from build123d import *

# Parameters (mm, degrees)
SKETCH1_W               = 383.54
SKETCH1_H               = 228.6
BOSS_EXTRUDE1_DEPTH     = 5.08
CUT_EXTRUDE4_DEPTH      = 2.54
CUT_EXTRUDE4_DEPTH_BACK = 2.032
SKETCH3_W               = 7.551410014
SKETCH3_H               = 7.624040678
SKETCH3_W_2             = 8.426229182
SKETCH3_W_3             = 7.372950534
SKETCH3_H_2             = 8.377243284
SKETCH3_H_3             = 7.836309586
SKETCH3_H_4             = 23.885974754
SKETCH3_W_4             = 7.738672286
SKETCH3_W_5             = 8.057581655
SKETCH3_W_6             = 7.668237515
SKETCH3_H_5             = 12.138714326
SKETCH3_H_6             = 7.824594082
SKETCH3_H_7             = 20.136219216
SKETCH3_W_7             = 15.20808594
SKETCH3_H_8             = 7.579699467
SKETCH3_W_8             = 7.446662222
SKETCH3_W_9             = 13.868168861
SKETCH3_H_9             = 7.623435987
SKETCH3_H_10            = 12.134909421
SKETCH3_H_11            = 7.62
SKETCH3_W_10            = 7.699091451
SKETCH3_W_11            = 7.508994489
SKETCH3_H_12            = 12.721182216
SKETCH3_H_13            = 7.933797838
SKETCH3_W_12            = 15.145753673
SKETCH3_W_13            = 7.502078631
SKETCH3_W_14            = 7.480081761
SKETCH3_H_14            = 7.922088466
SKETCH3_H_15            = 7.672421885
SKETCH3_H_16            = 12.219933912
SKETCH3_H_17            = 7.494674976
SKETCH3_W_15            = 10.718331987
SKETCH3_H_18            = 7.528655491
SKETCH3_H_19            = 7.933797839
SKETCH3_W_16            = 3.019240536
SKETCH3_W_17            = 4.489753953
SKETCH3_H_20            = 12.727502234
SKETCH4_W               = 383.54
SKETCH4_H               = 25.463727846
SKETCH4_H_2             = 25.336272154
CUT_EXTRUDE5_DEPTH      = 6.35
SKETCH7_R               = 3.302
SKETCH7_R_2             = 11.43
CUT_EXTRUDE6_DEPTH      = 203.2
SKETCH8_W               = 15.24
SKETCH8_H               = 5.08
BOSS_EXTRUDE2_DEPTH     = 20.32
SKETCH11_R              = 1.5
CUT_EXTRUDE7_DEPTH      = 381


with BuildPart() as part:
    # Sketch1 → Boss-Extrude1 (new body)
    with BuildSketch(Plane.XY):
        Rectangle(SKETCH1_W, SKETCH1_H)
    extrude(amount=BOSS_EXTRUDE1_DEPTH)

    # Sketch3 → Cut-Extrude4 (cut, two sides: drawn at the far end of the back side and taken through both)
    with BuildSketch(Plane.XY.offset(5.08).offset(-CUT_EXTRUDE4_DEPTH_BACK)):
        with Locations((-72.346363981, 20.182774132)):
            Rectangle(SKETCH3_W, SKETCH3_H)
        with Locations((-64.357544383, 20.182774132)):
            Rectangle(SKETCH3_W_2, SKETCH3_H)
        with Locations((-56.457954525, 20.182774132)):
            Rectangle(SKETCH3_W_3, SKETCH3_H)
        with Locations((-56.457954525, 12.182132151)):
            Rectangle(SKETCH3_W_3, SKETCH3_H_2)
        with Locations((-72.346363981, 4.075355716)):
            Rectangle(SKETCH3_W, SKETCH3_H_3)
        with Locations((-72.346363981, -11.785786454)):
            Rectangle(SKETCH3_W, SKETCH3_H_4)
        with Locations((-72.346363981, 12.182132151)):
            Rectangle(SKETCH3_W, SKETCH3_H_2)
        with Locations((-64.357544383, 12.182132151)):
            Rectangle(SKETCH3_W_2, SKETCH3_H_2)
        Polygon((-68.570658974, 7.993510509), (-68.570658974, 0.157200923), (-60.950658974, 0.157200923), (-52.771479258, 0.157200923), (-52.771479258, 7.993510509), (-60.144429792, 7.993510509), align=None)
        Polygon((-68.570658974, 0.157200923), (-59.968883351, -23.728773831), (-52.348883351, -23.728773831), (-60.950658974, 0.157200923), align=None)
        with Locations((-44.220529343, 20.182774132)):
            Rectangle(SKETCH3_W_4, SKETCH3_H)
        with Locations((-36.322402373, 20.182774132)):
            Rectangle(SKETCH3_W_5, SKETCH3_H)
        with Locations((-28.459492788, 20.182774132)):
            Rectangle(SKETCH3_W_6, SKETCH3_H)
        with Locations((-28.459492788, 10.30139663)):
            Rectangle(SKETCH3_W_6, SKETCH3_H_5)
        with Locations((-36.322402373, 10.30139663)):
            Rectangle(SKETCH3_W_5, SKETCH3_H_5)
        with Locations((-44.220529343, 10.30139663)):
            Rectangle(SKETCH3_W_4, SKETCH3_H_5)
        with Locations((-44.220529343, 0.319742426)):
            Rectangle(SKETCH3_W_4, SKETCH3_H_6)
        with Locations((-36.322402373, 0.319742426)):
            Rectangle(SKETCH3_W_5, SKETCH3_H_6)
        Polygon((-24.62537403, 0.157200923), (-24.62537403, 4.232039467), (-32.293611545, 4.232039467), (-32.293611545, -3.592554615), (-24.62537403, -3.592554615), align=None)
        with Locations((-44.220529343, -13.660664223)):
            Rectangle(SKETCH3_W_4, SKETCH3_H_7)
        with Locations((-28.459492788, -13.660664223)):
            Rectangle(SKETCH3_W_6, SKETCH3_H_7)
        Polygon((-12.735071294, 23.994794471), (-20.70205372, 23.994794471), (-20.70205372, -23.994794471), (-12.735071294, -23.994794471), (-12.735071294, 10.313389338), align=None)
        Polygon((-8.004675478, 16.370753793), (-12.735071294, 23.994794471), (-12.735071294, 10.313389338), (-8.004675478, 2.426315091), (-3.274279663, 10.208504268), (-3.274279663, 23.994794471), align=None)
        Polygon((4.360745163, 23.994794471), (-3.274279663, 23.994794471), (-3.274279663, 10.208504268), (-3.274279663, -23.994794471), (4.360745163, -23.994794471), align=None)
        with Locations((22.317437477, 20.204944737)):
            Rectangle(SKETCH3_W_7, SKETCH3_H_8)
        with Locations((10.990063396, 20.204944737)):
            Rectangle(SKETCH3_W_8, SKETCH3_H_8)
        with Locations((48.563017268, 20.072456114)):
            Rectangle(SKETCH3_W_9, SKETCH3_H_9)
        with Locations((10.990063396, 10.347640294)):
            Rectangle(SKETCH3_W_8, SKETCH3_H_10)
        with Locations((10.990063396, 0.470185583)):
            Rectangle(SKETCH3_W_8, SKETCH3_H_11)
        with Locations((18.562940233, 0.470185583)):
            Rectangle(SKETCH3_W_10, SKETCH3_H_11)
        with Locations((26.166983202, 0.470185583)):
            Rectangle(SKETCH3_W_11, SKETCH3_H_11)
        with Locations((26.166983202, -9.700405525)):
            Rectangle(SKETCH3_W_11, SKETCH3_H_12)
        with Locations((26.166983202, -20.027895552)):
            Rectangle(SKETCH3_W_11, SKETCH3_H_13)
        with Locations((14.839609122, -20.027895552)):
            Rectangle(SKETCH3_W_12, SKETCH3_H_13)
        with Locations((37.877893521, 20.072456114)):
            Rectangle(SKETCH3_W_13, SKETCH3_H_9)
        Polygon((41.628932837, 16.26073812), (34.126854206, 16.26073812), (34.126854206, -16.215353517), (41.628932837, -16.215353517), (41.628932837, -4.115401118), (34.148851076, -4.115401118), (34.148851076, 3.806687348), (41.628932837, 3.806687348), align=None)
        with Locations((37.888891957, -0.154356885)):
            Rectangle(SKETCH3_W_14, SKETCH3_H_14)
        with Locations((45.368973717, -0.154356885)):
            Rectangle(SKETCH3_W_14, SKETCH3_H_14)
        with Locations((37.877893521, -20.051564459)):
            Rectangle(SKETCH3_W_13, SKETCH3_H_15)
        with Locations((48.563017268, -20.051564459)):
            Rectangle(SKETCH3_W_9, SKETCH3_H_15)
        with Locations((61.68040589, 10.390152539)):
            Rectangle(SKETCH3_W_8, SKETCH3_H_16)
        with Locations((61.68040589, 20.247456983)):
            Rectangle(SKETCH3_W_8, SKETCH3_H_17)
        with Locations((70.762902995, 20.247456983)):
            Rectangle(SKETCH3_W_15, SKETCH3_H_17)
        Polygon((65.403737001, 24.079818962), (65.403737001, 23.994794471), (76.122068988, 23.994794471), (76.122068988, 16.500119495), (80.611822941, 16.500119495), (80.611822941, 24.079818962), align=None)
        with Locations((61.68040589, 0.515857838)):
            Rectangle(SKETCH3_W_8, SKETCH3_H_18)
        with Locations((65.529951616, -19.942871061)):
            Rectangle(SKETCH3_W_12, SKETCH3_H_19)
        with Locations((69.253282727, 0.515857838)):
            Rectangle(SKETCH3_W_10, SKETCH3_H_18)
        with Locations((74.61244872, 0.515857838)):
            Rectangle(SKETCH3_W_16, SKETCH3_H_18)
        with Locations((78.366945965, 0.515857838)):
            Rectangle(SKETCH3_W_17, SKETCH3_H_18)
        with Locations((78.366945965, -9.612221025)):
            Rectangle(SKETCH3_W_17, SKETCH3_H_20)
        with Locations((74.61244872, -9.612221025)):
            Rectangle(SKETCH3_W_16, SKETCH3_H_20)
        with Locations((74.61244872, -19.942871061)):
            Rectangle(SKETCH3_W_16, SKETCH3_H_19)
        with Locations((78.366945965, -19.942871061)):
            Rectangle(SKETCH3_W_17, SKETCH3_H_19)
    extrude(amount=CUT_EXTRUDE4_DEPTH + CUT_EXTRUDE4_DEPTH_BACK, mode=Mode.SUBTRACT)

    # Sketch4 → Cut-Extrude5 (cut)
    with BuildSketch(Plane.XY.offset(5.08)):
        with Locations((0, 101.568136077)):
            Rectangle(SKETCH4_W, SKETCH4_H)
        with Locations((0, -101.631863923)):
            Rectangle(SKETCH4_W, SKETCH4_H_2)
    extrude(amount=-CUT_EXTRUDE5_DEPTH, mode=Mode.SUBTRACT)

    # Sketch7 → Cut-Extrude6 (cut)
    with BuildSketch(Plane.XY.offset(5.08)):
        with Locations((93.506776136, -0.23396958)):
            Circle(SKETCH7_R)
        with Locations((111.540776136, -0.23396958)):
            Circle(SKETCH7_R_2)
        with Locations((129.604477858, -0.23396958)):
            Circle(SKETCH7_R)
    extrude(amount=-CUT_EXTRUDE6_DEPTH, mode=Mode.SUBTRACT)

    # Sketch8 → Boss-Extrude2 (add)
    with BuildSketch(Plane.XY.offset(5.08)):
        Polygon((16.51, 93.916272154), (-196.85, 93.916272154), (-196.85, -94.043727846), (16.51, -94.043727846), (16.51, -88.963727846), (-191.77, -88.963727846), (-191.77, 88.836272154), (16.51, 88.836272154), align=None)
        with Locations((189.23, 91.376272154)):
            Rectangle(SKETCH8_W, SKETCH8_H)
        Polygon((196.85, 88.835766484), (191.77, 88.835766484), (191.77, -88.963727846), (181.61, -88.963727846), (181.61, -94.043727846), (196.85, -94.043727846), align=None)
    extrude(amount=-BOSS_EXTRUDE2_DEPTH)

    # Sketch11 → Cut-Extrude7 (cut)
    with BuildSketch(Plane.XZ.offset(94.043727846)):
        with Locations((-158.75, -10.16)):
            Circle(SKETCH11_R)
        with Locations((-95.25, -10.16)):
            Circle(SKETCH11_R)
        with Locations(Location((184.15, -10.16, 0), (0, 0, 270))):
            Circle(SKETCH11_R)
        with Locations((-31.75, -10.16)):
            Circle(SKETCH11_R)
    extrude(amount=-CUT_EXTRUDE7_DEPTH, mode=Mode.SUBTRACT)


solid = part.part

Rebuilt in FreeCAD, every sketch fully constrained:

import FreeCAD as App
import Part
import Sketcher
Q = App.Units.Quantity


def add_polygon(sketch, points):
    """Adds a closed chain of lines whose ends are joined by coincident constraints."""
    first, n = sketch.GeometryCount, len(points)
    for a, b in zip(points, points[1:] + points[:1]):
        sketch.addGeometry(Part.LineSegment(App.Vector(*a, 0), App.Vector(*b, 0)), False)
    for i in range(n):
        sketch.addConstraint(Sketcher.Constraint("Coincident", first + i, 2, first + (i + 1) % n, 1))

doc = App.newDocument("Part")
body = doc.addObject("PartDesign::Body", "Body")

# Sketch on XY plane
sketch1 = body.newObject("Sketcher::SketchObject", "Sketch")
sketch1.AttachmentSupport = (doc.getObject("XY_Plane"), [""])
sketch1.MapMode = "FlatFace"
add_polygon(sketch1, [(-192, 114), (-192, -114), (192, -114), (192, 114)])  # lines 0-3
sketch1.addConstraint(Sketcher.Constraint("Vertical", 0))
sketch1.addConstraint(Sketcher.Constraint("Horizontal", 1))
sketch1.addConstraint(Sketcher.Constraint("Vertical", 2))
sketch1.addConstraint(Sketcher.Constraint("Horizontal", 3))
sketch1.addConstraint(Sketcher.Constraint("Symmetric", 0, 2, 2, 2, -1, 1))
sketch1.addConstraint(Sketcher.Constraint("DistanceY", 0, 2, 0, 1, Q("9 in")))
sketch1.addConstraint(Sketcher.Constraint("DistanceX", 1, 1, 1, 2, Q("15.1 in")))
pad1 = body.newObject("PartDesign::Pad", "Pad")
pad1.Profile = sketch1
pad1.Length = Q("0.2 in")

# Sketch on XY plane
sketch2 = body.newObject("Sketcher::SketchObject", "Sketch001")
sketch2.AttachmentSupport = (doc.getObject("XY_Plane"), [""])
sketch2.MapMode = "FlatFace"
sketch2.AttachmentOffset = App.Placement(App.Vector(0, 0, 0.2 * 25.4), App.Rotation())
add_polygon(sketch2, [(-76.12, 23.99), (-76.12, -23.73), (-68.57, -23.73), (-68.57, 0.16), (-59.97, -23.73), (-52.35, -23.73), (-60.95, 0.16), (-52.77, 0.16), (-52.77, 23.99)])  # lines 0-8
add_polygon(sketch2, [(-48.09, 23.99), (-48.09, -23.73), (-40.35, -23.73), (-40.35, -3.59), (-32.29, -3.59), (-32.29, -23.73), (-24.63, -23.73), (-24.63, -3.59), (-24.63, 4.23), (-24.63, 23.99)])  # lines 9-18
add_polygon(sketch2, [(-12.74, 23.99), (-20.7, 23.99), (-20.7, -23.99), (-12.74, -23.99), (-12.74, 10.31), (-8, 2.43), (-3.27, 10.21), (-3.27, -23.99), (4.36, -23.99), (4.36, 23.99), (-3.27, 23.99), (-8, 16.37)])  # lines 19-30
add_polygon(sketch2, [(29.92, 16.42), (29.92, 23.99), (7.27, 23.99), (7.27, -3.34), (22.41, -3.34), (22.41, -16.06), (7.27, -16.06), (7.27, -23.99), (29.92, -23.99), (29.92, 4.28), (14.71, 4.28), (14.71, 16.42)])  # lines 31-42
add_polygon(sketch2, [(55.5, 16.26), (55.5, 23.88), (34.13, 23.88), (34.13, 16.26), (34.13, -16.22), (34.13, -23.89), (55.5, -23.89), (55.5, -16.22), (41.63, -16.22), (41.63, -4.12), (49.11, -4.12), (49.11, 3.81), (41.63, 3.81), (41.63, 16.26)])  # lines 43-56
add_polygon(sketch2, [(65.4, 16.5), (80.61, 16.5), (80.61, 24.08), (65.4, 24.08), (65.4, 23.99), (57.96, 23.99), (57.96, -3.25), (73.1, -3.25), (73.1, -15.98), (57.96, -15.98), (57.96, -23.91), (80.61, -23.91), (80.61, 4.28), (65.4, 4.28)])  # lines 57-70
sketch2.addConstraint(Sketcher.Constraint("Vertical", 0))
sketch2.addConstraint(Sketcher.Constraint("Horizontal", 1))
sketch2.addConstraint(Sketcher.Constraint("Vertical", 2))
sketch2.addConstraint(Sketcher.Constraint("Horizontal", 4))
sketch2.addConstraint(Sketcher.Constraint("Horizontal", 6))
sketch2.addConstraint(Sketcher.Constraint("Vertical", 7))
sketch2.addConstraint(Sketcher.Constraint("Horizontal", 8))
sketch2.addConstraint(Sketcher.Constraint("Vertical", 9))
sketch2.addConstraint(Sketcher.Constraint("Horizontal", 10))
sketch2.addConstraint(Sketcher.Constraint("Vertical", 11))
sketch2.addConstraint(Sketcher.Constraint("Horizontal", 12))
sketch2.addConstraint(Sketcher.Constraint("Vertical", 13))
sketch2.addConstraint(Sketcher.Constraint("Horizontal", 14))
sketch2.addConstraint(Sketcher.Constraint("Vertical", 15))
sketch2.addConstraint(Sketcher.Constraint("Vertical", 16))
sketch2.addConstraint(Sketcher.Constraint("Vertical", 17))
sketch2.addConstraint(Sketcher.Constraint("Horizontal", 18))
sketch2.addConstraint(Sketcher.Constraint("Horizontal", 19))
sketch2.addConstraint(Sketcher.Constraint("Vertical", 20))
sketch2.addConstraint(Sketcher.Constraint("Horizontal", 21))
sketch2.addConstraint(Sketcher.Constraint("Vertical", 22))
sketch2.addConstraint(Sketcher.Constraint("Vertical", 25))
sketch2.addConstraint(Sketcher.Constraint("Horizontal", 26))
sketch2.addConstraint(Sketcher.Constraint("Vertical", 27))
sketch2.addConstraint(Sketcher.Constraint("Horizontal", 28))
sketch2.addConstraint(Sketcher.Constraint("Vertical", 31))
sketch2.addConstraint(Sketcher.Constraint("Horizontal", 32))
sketch2.addConstraint(Sketcher.Constraint("Vertical", 33))
sketch2.addConstraint(Sketcher.Constraint("Horizontal", 34))
sketch2.addConstraint(Sketcher.Constraint("Vertical", 35))
sketch2.addConstraint(Sketcher.Constraint("Horizontal", 36))
sketch2.addConstraint(Sketcher.Constraint("Vertical", 37))
sketch2.addConstraint(Sketcher.Constraint("Horizontal", 38))
sketch2.addConstraint(Sketcher.Constraint("Vertical", 39))
sketch2.addConstraint(Sketcher.Constraint("Horizontal", 40))
sketch2.addConstraint(Sketcher.Constraint("Vertical", 41))
sketch2.addConstraint(Sketcher.Constraint("Horizontal", 42))
sketch2.addConstraint(Sketcher.Constraint("Vertical", 43))
sketch2.addConstraint(Sketcher.Constraint("Horizontal", 44))
sketch2.addConstraint(Sketcher.Constraint("Vertical", 45))
sketch2.addConstraint(Sketcher.Constraint("Vertical", 46))
sketch2.addConstraint(Sketcher.Constraint("Vertical", 47))
sketch2.addConstraint(Sketcher.Constraint("Horizontal", 48))
sketch2.addConstraint(Sketcher.Constraint("Vertical", 49))
sketch2.addConstraint(Sketcher.Constraint("Horizontal", 50))
sketch2.addConstraint(Sketcher.Constraint("Vertical", 51))
sketch2.addConstraint(Sketcher.Constraint("Horizontal", 52))
sketch2.addConstraint(Sketcher.Constraint("Vertical", 53))
sketch2.addConstraint(Sketcher.Constraint("Horizontal", 54))
sketch2.addConstraint(Sketcher.Constraint("Vertical", 55))
sketch2.addConstraint(Sketcher.Constraint("Horizontal", 56))
sketch2.addConstraint(Sketcher.Constraint("Horizontal", 57))
sketch2.addConstraint(Sketcher.Constraint("Vertical", 58))
sketch2.addConstraint(Sketcher.Constraint("Horizontal", 59))
sketch2.addConstraint(Sketcher.Constraint("Vertical", 60))
sketch2.addConstraint(Sketcher.Constraint("Horizontal", 61))
sketch2.addConstraint(Sketcher.Constraint("Vertical", 62))
sketch2.addConstraint(Sketcher.Constraint("Horizontal", 63))
sketch2.addConstraint(Sketcher.Constraint("Vertical", 64))
sketch2.addConstraint(Sketcher.Constraint("Horizontal", 65))
sketch2.addConstraint(Sketcher.Constraint("Vertical", 66))
sketch2.addConstraint(Sketcher.Constraint("Horizontal", 67))
sketch2.addConstraint(Sketcher.Constraint("Vertical", 68))
sketch2.addConstraint(Sketcher.Constraint("Horizontal", 69))
sketch2.addConstraint(Sketcher.Constraint("Vertical", 70))
sketch2.addConstraint(Sketcher.Constraint("Symmetric", 25, 2, 28, 2, -1))
sketch2.addConstraint(Sketcher.Constraint("Symmetric", 21, 2, 30, 2, -1))
sketch2.addConstraint(Sketcher.Constraint("Symmetric", 32, 2, 37, 2, -1))
sketch2.addConstraint(Sketcher.Constraint("Parallel", 3, 5))
sketch2.addConstraint(Sketcher.Constraint("Horizontal", 1, 2, 3, 2))
sketch2.addConstraint(Sketcher.Constraint("Horizontal", 2, 2, 5, 2))
sketch2.addConstraint(Sketcher.Constraint("Horizontal", 4, 2, 9, 2))
sketch2.addConstraint(Sketcher.Constraint("Horizontal", 10, 2, 13, 2))
sketch2.addConstraint(Sketcher.Constraint("Horizontal", 12, 2, 15, 2))
sketch2.addConstraint(Sketcher.Constraint("Horizontal", 8, 2, 17, 2))
sketch2.addConstraint(Sketcher.Constraint("Horizontal", 18, 2, 19, 2))
sketch2.addConstraint(Sketcher.Constraint("Horizontal", 21, 2, 25, 2))
sketch2.addConstraint(Sketcher.Constraint("Horizontal", 30, 2, 31, 2))
sketch2.addConstraint(Sketcher.Constraint("Horizontal", 46, 2, 49, 2))
sketch2.addConstraint(Sketcher.Constraint("Horizontal", 45, 2, 55, 2))
sketch2.addConstraint(Sketcher.Constraint("Horizontal", 32, 2, 60, 2))
sketch2.addConstraint(Sketcher.Constraint("Horizontal", 40, 2, 68, 2))
sketch2.addConstraint(Sketcher.Constraint("Vertical", 23, 2, 29, 2))
sketch2.addConstraint(Sketcher.Constraint("Vertical", 31, 2, 38, 2))
sketch2.addConstraint(Sketcher.Constraint("Vertical", 43, 2, 48, 2))
sketch2.addConstraint(Sketcher.Constraint("Vertical", 51, 2, 54, 2))
sketch2.addConstraint(Sketcher.Constraint("Vertical", 62, 2, 65, 2))
sketch2.addConstraint(Sketcher.Constraint("Vertical", 58, 2, 67, 2))
sketch2.addConstraint(Sketcher.Constraint("Vertical", 60, 2, 69, 2))
sketch2.addConstraint(Sketcher.Constraint("Equal", 42, 57))
sketch2.addConstraint(Sketcher.Constraint("Equal", 36, 63))
sketch2.addConstraint(Sketcher.Constraint("Equal", 38, 67))
sketch2.addConstraint(Sketcher.Constraint("Equal", 31, 58))
sketch2.addConstraint(Sketcher.Constraint("Equal", 37, 66))
sketch2.addConstraint(Sketcher.Constraint("Equal", 29, 30))
sketch2.addConstraint(Sketcher.Constraint("DistanceX", 4, 1, 4, 2, Q("0.3 in")))
sketch2.addConstraint(Sketcher.Constraint("DistanceY", 25, 2, 25, 1, 34.203299))
sketch2.addConstraint(Sketcher.Constraint("DistanceY", 31, 1, 31, 2, 7.579699))
sketch2.addConstraint(Sketcher.Constraint("Distance", 3, 25.387602))
sketch2.addConstraint(Sketcher.Constraint("DistanceX", 1, 1, 1, 2, 7.55141))
sketch2.addConstraint(Sketcher.Constraint("DistanceX", 6, 1, 6, 2, 8.17918))
sketch2.addConstraint(Sketcher.Constraint("DistanceX", 12, 1, 12, 2, 8.057582))
sketch2.addConstraint(Sketcher.Constraint("DistanceX", 18, 2, 18, 1, 23.464491))
sketch2.addConstraint(Sketcher.Constraint("DistanceX", 32, 2, 32, 1, 22.654748))
sketch2.addConstraint(Sketcher.Constraint("DistanceX", 50, 2, 50, 1, 13.868169))
sketch2.addConstraint(Sketcher.Constraint("DistanceX", 52, 1, 52, 2, 7.480082))
sketch2.addConstraint(Sketcher.Constraint("DistanceY", 0, 2, 0, 1, 47.723568))
sketch2.addConstraint(Sketcher.Constraint("DistanceY", 11, 1, 11, 2, 20.136219))
sketch2.addConstraint(Sketcher.Constraint("DistanceY", 20, 2, 20, 1, 47.989589))
sketch2.addConstraint(Sketcher.Constraint("DistanceY", 33, 2, 33, 1, 27.334609))
sketch2.addConstraint(Sketcher.Constraint("DistanceY", 39, 1, 39, 2, 28.27498))
sketch2.addConstraint(Sketcher.Constraint("DistanceY", 46, 2, 46, 1, 32.476092))
sketch2.addConstraint(Sketcher.Constraint("DistanceY", 47, 2, 47, 1, 7.672422))
sketch2.addConstraint(Sketcher.Constraint("DistanceY", 53, 1, 53, 2, 7.922088))
sketch2.addConstraint(Sketcher.Constraint("DistanceY", 55, 1, 55, 2, 12.454051))
sketch2.addConstraint(Sketcher.Constraint("DistanceY", -1, 1, 2, 2, 0.157201))
sketch2.addConstraint(Sketcher.Constraint("DistanceX", -1, 1, 43, 2, 55.497102))
sketch2.addConstraint(Sketcher.Constraint("DistanceY", 51, 2, -1, 1, 4.115401))
sketch2.addConstraint(Sketcher.Constraint("Distance", 23, 9.196879))
sketch2.addConstraint(Sketcher.Constraint("Distance", 24, 9.107091))
sketch2.addConstraint(Sketcher.Constraint("DistanceX", 10, 1, 10, 2, 7.738672))
sketch2.addConstraint(Sketcher.Constraint("DistanceX", 19, 2, 19, 1, 7.966982))
sketch2.addConstraint(Sketcher.Constraint("DistanceX", 26, 1, 26, 2, 7.635025))
sketch2.addConstraint(Sketcher.Constraint("DistanceX", 34, 1, 34, 2, 15.145754))
sketch2.addConstraint(Sketcher.Constraint("DistanceX", 40, 2, 40, 1, 15.208086))
sketch2.addConstraint(Sketcher.Constraint("DistanceX", 44, 2, 44, 1, 21.370247))
sketch2.addConstraint(Sketcher.Constraint("DistanceY", 16, 1, 16, 2, 7.824594))
sketch2.addConstraint(Sketcher.Constraint("DistanceY", 35, 2, 35, 1, 12.721182))
sketch2.addConstraint(Sketcher.Constraint("DistanceY", 43, 1, 43, 2, 7.623436))
sketch2.addConstraint(Sketcher.Constraint("DistanceY", 60, 2, 60, 1, 0.085024))
sketch2.addConstraint(Sketcher.Constraint("DistanceY", 62, 2, 62, 1, 27.243264))
sketch2.addConstraint(Sketcher.Constraint("DistanceY", 64, 2, 64, 1, 12.727502))
sketch2.addConstraint(Sketcher.Constraint("DistanceX", 0, 2, -1, 1, 76.122069))
sketch2.addConstraint(Sketcher.Constraint("DistanceX", 12, 2, -1, 1, 32.293612))
sketch2.addConstraint(Sketcher.Constraint("DistanceX", 21, 2, -1, 1, 12.735071))
sketch2.addConstraint(Sketcher.Constraint("DistanceX", 24, 2, -1, 1, 3.27428))
sketch2.addConstraint(Sketcher.Constraint("DistanceX", -1, 1, 31, 2, 29.92148))
sketch2.addConstraint(Sketcher.Constraint("DistanceX", -1, 1, 63, 2, 73.102828))
sketch2.addConstraint(Sketcher.Constraint("Distance", 29, 8.972326))
pocket1 = body.newObject("PartDesign::Pocket", "Pocket")
pocket1.Profile = sketch2
pocket1.Type = "TwoLengths"
pocket1.Length = Q("0.1 in")
pocket1.Length2 = Q("0.08 in")
pocket1.Reversed = True

# Sketch on XY plane
sketch3 = body.newObject("Sketcher::SketchObject", "Sketch002")
sketch3.AttachmentSupport = (doc.getObject("XY_Plane"), [""])
sketch3.MapMode = "FlatFace"
sketch3.AttachmentOffset = App.Placement(App.Vector(0, 0, 0.2 * 25.4), App.Rotation())
add_polygon(sketch3, [(-192, 114), (-192, 89), (192, 89), (192, 114)])  # lines 0-3
add_polygon(sketch3, [(-192, -89), (-192, -114), (192, -114), (192, -89)])  # lines 4-7
sketch3.addConstraint(Sketcher.Constraint("Vertical", 0))
sketch3.addConstraint(Sketcher.Constraint("Horizontal", 1))
sketch3.addConstraint(Sketcher.Constraint("Vertical", 2))
sketch3.addConstraint(Sketcher.Constraint("Horizontal", 3))
sketch3.addConstraint(Sketcher.Constraint("Vertical", 4))
sketch3.addConstraint(Sketcher.Constraint("Horizontal", 5))
sketch3.addConstraint(Sketcher.Constraint("Vertical", 6))
sketch3.addConstraint(Sketcher.Constraint("Horizontal", 7))
sketch3.addConstraint(Sketcher.Constraint("Symmetric", 2, 2, 4, 2, -1, 1))
sketch3.addConstraint(Sketcher.Constraint("Vertical", 3, 2, 4, 2))
sketch3.addConstraint(Sketcher.Constraint("Vertical", 2, 2, 5, 2))
sketch3.addConstraint(Sketcher.Constraint("DistanceX", 1, 1, 1, 2, Q("15.1 in")))
sketch3.addConstraint(Sketcher.Constraint("DistanceY", 4, 2, 3, 2, Q("9 in")))
sketch3.addConstraint(Sketcher.Constraint("DistanceY", 6, 2, 1, 2, Q("7 in")))
sketch3.addConstraint(Sketcher.Constraint("DistanceY", 0, 2, 0, 1, 25.463728))
pocket2 = body.newObject("PartDesign::Pocket", "Pocket001")
pocket2.Profile = sketch3
pocket2.Length = Q("0.25 in")

# Sketch on XY plane
sketch4 = body.newObject("Sketcher::SketchObject", "Sketch003")
sketch4.AttachmentSupport = (doc.getObject("XY_Plane"), [""])
sketch4.MapMode = "FlatFace"
sketch4.AttachmentOffset = App.Placement(App.Vector(0, 0, 0.2 * 25.4), App.Rotation())
sketch4.addGeometry(Part.Circle(App.Vector(93.5, -0.2, 0), App.Vector(0, 0, 1), 3.3), False)
sketch4.addGeometry(Part.Circle(App.Vector(111.5, -0.2, 0), App.Vector(0, 0, 1), 11.4), False)
sketch4.addGeometry(Part.Circle(App.Vector(129.6, -0.2, 0), App.Vector(0, 0, 1), 3.3), False)
sketch4.addConstraint(Sketcher.Constraint("Equal", 0, 2))
sketch4.addConstraint(Sketcher.Constraint("Horizontal", 0, 3, 1, 3))
sketch4.addConstraint(Sketcher.Constraint("Horizontal", 1, 3, 2, 3))
sketch4.addConstraint(Sketcher.Constraint("Diameter", 1, Q("0.9 in")))
sketch4.addConstraint(Sketcher.Constraint("Diameter", 0, Q("0.26 in")))
sketch4.addConstraint(Sketcher.Constraint("DistanceX", 0, 3, 1, 3, Q("0.71 in")))
sketch4.addConstraint(Sketcher.Constraint("DistanceX", 1, 3, 2, 3, 18.063702))
sketch4.addConstraint(Sketcher.Constraint("DistanceY", 0, 3, -1, 1, 0.23397))
sketch4.addConstraint(Sketcher.Constraint("DistanceX", -1, 1, 0, 3, 93.506776))
pocket3 = body.newObject("PartDesign::Pocket", "Pocket002")
pocket3.Profile = sketch4
pocket3.Length = Q("8 in")

# Sketch on XY plane
sketch5 = body.newObject("Sketcher::SketchObject", "Sketch004")
sketch5.AttachmentSupport = (doc.getObject("XY_Plane"), [""])
sketch5.MapMode = "FlatFace"
sketch5.AttachmentOffset = App.Placement(App.Vector(0, 0, 0.2 * 25.4), App.Rotation())
add_polygon(sketch5, [(17, 94), (-197, 94), (-197, -94), (17, -94), (17, -89), (-192, -89), (-192, 89), (17, 89)])  # lines 0-7
add_polygon(sketch5, [(182, 94), (182, 89), (197, 89), (197, 94)])  # lines 8-11
add_polygon(sketch5, [(197, 89), (192, 89), (192, -89), (182, -89), (182, -94), (197, -94)])  # lines 12-17
sketch5.addConstraint(Sketcher.Constraint("Horizontal", 0))
sketch5.addConstraint(Sketcher.Constraint("Vertical", 1))
sketch5.addConstraint(Sketcher.Constraint("Horizontal", 2))
sketch5.addConstraint(Sketcher.Constraint("Vertical", 3))
sketch5.addConstraint(Sketcher.Constraint("Horizontal", 4))
sketch5.addConstraint(Sketcher.Constraint("Vertical", 5))
sketch5.addConstraint(Sketcher.Constraint("Horizontal", 6))
sketch5.addConstraint(Sketcher.Constraint("Vertical", 7))
sketch5.addConstraint(Sketcher.Constraint("Vertical", 8))
sketch5.addConstraint(Sketcher.Constraint("Horizontal", 9))
sketch5.addConstraint(Sketcher.Constraint("Vertical", 10))
sketch5.addConstraint(Sketcher.Constraint("Horizontal", 11))
sketch5.addConstraint(Sketcher.Constraint("Horizontal", 12))
sketch5.addConstraint(Sketcher.Constraint("Vertical", 13))
sketch5.addConstraint(Sketcher.Constraint("Horizontal", 14))
sketch5.addConstraint(Sketcher.Constraint("Vertical", 15))
sketch5.addConstraint(Sketcher.Constraint("Horizontal", 16))
sketch5.addConstraint(Sketcher.Constraint("Vertical", 17))
sketch5.addConstraint(Sketcher.Constraint("Symmetric", 0, 2, 10, 2, -2))
sketch5.addConstraint(Sketcher.Constraint("Symmetric", 4, 2, 13, 2, -2))
sketch5.addConstraint(Sketcher.Constraint("Symmetric", 1, 2, 16, 2, -2))
sketch5.addConstraint(Sketcher.Constraint("Horizontal", 6, 2, 8, 2))
sketch5.addConstraint(Sketcher.Constraint("Vertical", 3, 2, 6, 2))
sketch5.addConstraint(Sketcher.Constraint("Vertical", 11, 2, 14, 2))
sketch5.addConstraint(Sketcher.Constraint("Equal", 12, 3))
sketch5.addConstraint(Sketcher.Constraint("Equal", 3, 7))
sketch5.addConstraint(Sketcher.Constraint("DistanceY", 5, 1, 5, 2, Q("7 in")))
sketch5.addConstraint(Sketcher.Constraint("DistanceX", 0, 2, 0, 1, Q("8.4 in")))
sketch5.addConstraint(Sketcher.Constraint("DistanceX", 4, 2, 4, 1, Q("8.2 in")))
sketch5.addConstraint(Sketcher.Constraint("DistanceX", 9, 1, 9, 2, Q("0.6 in")))
sketch5.addConstraint(Sketcher.Constraint("DistanceX", 6, 2, 8, 2, Q("6.5 in")))
sketch5.addConstraint(Sketcher.Constraint("DistanceY", 13, 2, 13, 1, 177.799494))
sketch5.addConstraint(Sketcher.Constraint("DistanceY", -1, 1, 0, 2, 93.916272))
pad2 = body.newObject("PartDesign::Pad", "Pad001")
pad2.Profile = sketch5
pad2.Length = Q("0.8 in")
pad2.Reversed = True

# Sketch on XZ plane
sketch6 = body.newObject("Sketcher::SketchObject", "Sketch005")
sketch6.AttachmentSupport = (doc.getObject("XZ_Plane"), [""])
sketch6.MapMode = "FlatFace"
sketch6.AttachmentOffset = App.Placement(App.Vector(0, 0, 94.043728), App.Rotation())
sketch6.addGeometry(Part.Circle(App.Vector(-158.8, -10.2, 0), App.Vector(0, 0, 1), 1.5), False)
sketch6.addGeometry(Part.Circle(App.Vector(-95.2, -10.2, 0), App.Vector(0, 0, 1), 1.5), False)
sketch6.addGeometry(Part.Circle(App.Vector(184.2, -10.2, 0), App.Vector(0, 0, 1), 1.5), False)
sketch6.addGeometry(Part.Circle(App.Vector(-31.8, -10.2, 0), App.Vector(0, 0, 1), 1.5), False)
sketch6.addConstraint(Sketcher.Constraint("Equal", 0, 1))
sketch6.addConstraint(Sketcher.Constraint("Equal", 1, 2))
sketch6.addConstraint(Sketcher.Constraint("Equal", 2, 3))
sketch6.addConstraint(Sketcher.Constraint("Horizontal", 0, 3, 1, 3))
sketch6.addConstraint(Sketcher.Constraint("Horizontal", 1, 3, 2, 3))
sketch6.addConstraint(Sketcher.Constraint("Horizontal", 2, 3, 3, 3))
sketch6.addConstraint(Sketcher.Constraint("DistanceX", 1, 3, 2, 3, Q("11 in")))
sketch6.addConstraint(Sketcher.Constraint("DistanceX", 0, 3, 3, 3, Q("5 in")))
sketch6.addConstraint(Sketcher.Constraint("DistanceY", 0, 3, -1, 1, Q("0.4 in")))
sketch6.addConstraint(Sketcher.Constraint("DistanceX", 0, 3, 1, 3, Q("2.5 in")))
sketch6.addConstraint(Sketcher.Constraint("Diameter", 0, 3.0))
sketch6.addConstraint(Sketcher.Constraint("DistanceX", 0, 3, -1, 1, Q("6.25 in")))
pocket4 = body.newObject("PartDesign::Pocket", "Pocket003")
pocket4.Profile = sketch6
pocket4.Length = Q("15 in")

doc.recompute()
